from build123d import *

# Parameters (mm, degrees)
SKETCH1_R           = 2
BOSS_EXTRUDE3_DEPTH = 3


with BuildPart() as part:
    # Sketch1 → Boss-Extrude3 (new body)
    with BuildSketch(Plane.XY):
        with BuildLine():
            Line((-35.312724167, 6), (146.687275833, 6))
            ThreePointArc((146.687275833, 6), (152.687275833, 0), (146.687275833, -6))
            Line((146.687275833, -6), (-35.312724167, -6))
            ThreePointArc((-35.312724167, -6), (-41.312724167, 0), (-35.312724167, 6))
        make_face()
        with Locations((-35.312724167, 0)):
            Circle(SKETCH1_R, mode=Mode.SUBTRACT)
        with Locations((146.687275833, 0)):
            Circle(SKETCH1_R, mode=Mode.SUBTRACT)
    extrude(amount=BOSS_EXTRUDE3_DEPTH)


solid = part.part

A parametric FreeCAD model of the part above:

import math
import FreeCAD as App
import Part
import Sketcher
Q = App.Units.Quantity

doc = App.newDocument("Part")
params = doc.addObject("Spreadsheet::Sheet", "Params")
for row, (alias, value) in enumerate([
    ("sketch1_diameter", "4 mm"),
    ("sketch1_radius", "6 mm"),
    ("sketch1_width", "182 mm"),
    ("pad1_length", "3 mm"),
], start=1):
    params.set(f"A{row}", alias)
    params.set(f"B{row}", "=" + value)
    params.setAlias(f"B{row}", alias)

body = doc.addObject("PartDesign::Body", "Body")

# Sketch on XY plane
sketch1 = body.newObject("Sketcher::SketchObject", "Sketch")
sketch1.AttachmentSupport = (doc.getObject("XY_Plane"), [""])
sketch1.MapMode = "FlatFace"
sketch1.addGeometry([
    Part.LineSegment(App.Vector(146.7, 6, 0), App.Vector(-35.3, 6, 0)),  # 0
    Part.ArcOfCircle(Part.Circle(App.Vector(-35.3, 0, 0), App.Vector(0, 0, 1), 6), math.radians(90), math.radians(270)),  # 1
    Part.LineSegment(App.Vector(-35.3, -6, 0), App.Vector(146.7, -6, 0)),  # 2
    Part.ArcOfCircle(Part.Circle(App.Vector(146.7, 0, 0), App.Vector(0, 0, 1), 6), math.radians(-90), math.radians(90)),  # 3
    Part.Circle(App.Vector(146.7, 0, 0), App.Vector(0, 0, 1), 2),  # 4
    Part.Circle(App.Vector(-35.3, 0, 0), App.Vector(0, 0, 1), 2),  # 5
], False)
sketch1.addConstraint([
    Sketcher.Constraint("Tangent", 0, 2, 1, 1),
    Sketcher.Constraint("Tangent", 1, 2, 2, 1),
    Sketcher.Constraint("Tangent", 2, 2, 3, 1),
    Sketcher.Constraint("Tangent", 3, 2, 0, 1),
    Sketcher.Constraint("Horizontal", 0),
    Sketcher.Constraint("Horizontal", 2),
    Sketcher.Constraint("Coincident", 4, 3, 3, 3),
    Sketcher.Constraint("Coincident", 5, 3, 1, 3),
    Sketcher.Constraint("Equal", 4, 5),
    Sketcher.Constraint("PointOnObject", 1, 3, -1),
    Sketcher.Constraint("Diameter", 4, Q("4 mm")),
    Sketcher.Constraint("Radius", 1, Q("6 mm")),
    Sketcher.Constraint("DistanceX", 0, 2, 0, 1, Q("182 mm")),
    Sketcher.Constraint("DistanceX", 1, 3, -1, 1, Q("35.312724 mm")),
])
sketch1.setExpression("Constraints[10]", "Params.sketch1_diameter")
sketch1.setExpression("Constraints[11]", "Params.sketch1_radius")
sketch1.setExpression("Constraints[12]", "Params.sketch1_width")
pad1 = body.newObject("PartDesign::Pad", "Pad")
pad1.Profile = sketch1
pad1.setExpression("Length", "Params.pad1_length")

doc.recompute()
